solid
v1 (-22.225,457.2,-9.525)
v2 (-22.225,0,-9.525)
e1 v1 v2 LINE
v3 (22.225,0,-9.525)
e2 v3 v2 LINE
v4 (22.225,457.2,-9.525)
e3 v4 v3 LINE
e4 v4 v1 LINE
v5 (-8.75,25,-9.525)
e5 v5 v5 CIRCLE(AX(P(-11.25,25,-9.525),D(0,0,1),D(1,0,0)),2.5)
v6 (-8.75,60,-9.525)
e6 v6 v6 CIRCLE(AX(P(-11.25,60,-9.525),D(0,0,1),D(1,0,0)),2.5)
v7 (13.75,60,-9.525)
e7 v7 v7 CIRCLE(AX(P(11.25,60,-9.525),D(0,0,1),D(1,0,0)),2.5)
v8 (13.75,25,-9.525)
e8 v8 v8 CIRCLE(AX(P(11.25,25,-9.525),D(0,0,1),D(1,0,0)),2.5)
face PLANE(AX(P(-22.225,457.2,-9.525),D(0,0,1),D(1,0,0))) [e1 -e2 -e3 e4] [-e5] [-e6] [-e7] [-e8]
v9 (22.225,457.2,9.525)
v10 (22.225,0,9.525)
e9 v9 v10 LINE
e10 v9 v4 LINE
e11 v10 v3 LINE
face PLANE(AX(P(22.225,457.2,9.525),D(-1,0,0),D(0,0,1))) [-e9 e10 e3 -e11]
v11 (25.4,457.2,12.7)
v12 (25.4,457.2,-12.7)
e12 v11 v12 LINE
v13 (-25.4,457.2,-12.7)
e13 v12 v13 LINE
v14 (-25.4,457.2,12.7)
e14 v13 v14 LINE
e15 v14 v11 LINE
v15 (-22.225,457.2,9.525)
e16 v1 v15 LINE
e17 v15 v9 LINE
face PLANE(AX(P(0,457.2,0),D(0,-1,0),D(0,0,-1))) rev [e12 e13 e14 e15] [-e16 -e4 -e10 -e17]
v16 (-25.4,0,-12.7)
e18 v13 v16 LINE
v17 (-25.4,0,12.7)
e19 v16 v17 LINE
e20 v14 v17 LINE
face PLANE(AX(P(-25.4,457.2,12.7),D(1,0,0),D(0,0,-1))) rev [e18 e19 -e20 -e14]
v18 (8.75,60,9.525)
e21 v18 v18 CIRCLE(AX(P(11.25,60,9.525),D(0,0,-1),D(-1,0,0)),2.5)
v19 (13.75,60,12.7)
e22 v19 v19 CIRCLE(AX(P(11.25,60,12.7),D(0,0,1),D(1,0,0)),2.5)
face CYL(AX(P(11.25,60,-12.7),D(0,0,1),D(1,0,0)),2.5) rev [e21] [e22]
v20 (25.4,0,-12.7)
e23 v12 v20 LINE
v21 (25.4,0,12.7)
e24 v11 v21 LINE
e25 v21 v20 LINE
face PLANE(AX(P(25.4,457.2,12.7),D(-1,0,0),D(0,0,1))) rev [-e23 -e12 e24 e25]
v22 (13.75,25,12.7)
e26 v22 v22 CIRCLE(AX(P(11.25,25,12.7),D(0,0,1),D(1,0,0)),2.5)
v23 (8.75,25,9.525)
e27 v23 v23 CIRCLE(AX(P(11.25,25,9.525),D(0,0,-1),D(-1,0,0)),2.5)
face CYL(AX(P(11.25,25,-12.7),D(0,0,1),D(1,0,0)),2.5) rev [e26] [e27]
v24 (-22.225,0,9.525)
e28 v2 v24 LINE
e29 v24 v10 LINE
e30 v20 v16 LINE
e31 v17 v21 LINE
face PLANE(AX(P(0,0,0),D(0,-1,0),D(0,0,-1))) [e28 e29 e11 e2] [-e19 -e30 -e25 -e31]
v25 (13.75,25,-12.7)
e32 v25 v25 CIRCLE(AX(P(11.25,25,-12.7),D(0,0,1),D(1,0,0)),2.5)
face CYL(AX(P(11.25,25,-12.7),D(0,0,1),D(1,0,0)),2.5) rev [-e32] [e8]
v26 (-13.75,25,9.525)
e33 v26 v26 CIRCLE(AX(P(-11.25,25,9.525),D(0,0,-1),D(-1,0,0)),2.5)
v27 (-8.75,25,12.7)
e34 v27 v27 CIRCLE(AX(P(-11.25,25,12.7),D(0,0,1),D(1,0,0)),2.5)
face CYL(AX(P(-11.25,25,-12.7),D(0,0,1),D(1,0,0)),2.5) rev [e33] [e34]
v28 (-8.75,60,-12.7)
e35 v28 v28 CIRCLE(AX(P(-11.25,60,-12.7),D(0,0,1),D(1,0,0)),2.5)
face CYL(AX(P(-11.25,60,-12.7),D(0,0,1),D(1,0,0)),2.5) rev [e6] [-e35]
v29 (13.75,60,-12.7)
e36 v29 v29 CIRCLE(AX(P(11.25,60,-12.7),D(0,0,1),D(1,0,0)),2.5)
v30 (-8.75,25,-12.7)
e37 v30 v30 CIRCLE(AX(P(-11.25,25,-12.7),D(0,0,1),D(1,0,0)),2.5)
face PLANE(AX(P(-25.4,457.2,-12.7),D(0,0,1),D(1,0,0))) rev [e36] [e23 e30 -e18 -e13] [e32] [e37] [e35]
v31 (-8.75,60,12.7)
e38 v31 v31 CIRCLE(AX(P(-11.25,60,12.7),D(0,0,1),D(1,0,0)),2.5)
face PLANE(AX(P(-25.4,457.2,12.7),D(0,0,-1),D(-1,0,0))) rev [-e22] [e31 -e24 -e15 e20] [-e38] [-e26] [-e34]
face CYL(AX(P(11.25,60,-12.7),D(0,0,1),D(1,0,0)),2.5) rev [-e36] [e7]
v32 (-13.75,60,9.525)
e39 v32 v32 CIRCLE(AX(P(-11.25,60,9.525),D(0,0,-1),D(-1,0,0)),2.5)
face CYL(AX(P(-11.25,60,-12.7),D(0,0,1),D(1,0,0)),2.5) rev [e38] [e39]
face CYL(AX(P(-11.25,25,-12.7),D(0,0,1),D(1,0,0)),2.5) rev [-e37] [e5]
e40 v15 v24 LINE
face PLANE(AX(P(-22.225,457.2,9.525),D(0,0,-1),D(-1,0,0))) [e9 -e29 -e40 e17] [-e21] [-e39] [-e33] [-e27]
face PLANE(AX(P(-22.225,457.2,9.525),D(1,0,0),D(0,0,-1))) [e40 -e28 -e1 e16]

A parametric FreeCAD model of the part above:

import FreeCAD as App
import Part
import Sketcher
from FreeCAD import Vector
Q = App.Units.Quantity


def add_polygon(sketch, points):
    """Adds a closed chain of lines whose ends are joined by coincident constraints."""
    first, n = sketch.GeometryCount, len(points)
    for a, b in zip(points, points[1:] + points[:1]):
        sketch.addGeometry(Part.LineSegment(App.Vector(*a, 0), App.Vector(*b, 0)), False)
    for i in range(n):
        sketch.addConstraint(Sketcher.Constraint("Coincident", first + i, 2, first + (i + 1) % n, 1))

doc = App.newDocument("Part")
params = doc.addObject("Spreadsheet::Sheet", "Params")
for row, (alias, value) in enumerate([
    ("sketch1_width", "2 in"),
    ("sketch1_height", "1 in"),
    ("sketch1_width2", "1.75 in"),
    ("sketch1_height2", "0.75 in"),
    ("pad1_length", "18 in"),
], start=1):
    params.set(f"A{row}", alias)
    params.set(f"B{row}", "=" + value)
    params.setAlias(f"B{row}", alias)

body = doc.addObject("PartDesign::Body", "Body")

# Sketch on XZ plane
sketch1 = body.newObject("Sketcher::SketchObject", "Sketch")
sketch1.AttachmentSupport = (doc.getObject("XZ_Plane"), [""])
sketch1.MapMode = "FlatFace"
add_polygon(sketch1, [(-25, -13), (-25, 13), (25, 13), (25, -13)])  # lines 0-3
add_polygon(sketch1, [(22, 10), (-22, 10), (-22, -10), (22, -10)])  # lines 4-7
sketch1.addConstraint(Sketcher.Constraint("Vertical", 0))
sketch1.addConstraint(Sketcher.Constraint("Horizontal", 1))
sketch1.addConstraint(Sketcher.Constraint("Vertical", 2))
sketch1.addConstraint(Sketcher.Constraint("Horizontal", 3))
sketch1.addConstraint(Sketcher.Constraint("Horizontal", 4))
sketch1.addConstraint(Sketcher.Constraint("Vertical", 5))
sketch1.addConstraint(Sketcher.Constraint("Horizontal", 6))
sketch1.addConstraint(Sketcher.Constraint("Vertical", 7))
sketch1.addConstraint(Sketcher.Constraint("Symmetric", 0, 2, 2, 2, -1, 1))
sketch1.addConstraint(Sketcher.Constraint("Symmetric", 4, 2, 6, 2, -1, 1))
sketch1.addConstraint(Sketcher.Constraint("DistanceX", 1, 1, 1, 2, Q("2 in")))
sketch1.addConstraint(Sketcher.Constraint("DistanceY", 0, 1, 0, 2, Q("1 in")))
sketch1.addConstraint(Sketcher.Constraint("DistanceX", 4, 2, 4, 1, Q("1.75 in")))
sketch1.addConstraint(Sketcher.Constraint("DistanceY", 5, 2, 5, 1, Q("0.75 in")))
sketch1.setExpression("Constraints[18]", "Params.sketch1_width")
sketch1.setExpression("Constraints[19]", "Params.sketch1_height")
sketch1.setExpression("Constraints[20]", "Params.sketch1_width2")
sketch1.setExpression("Constraints[21]", "Params.sketch1_height2")
pad1 = body.newObject("PartDesign::Pad", "Pad")
pad1.Profile = sketch1
pad1.setExpression("Length", "Params.pad1_length")
pad1.Reversed = True

# Sketch on XY plane
sketch2 = body.newObject("Sketcher::SketchObject", "Sketch001")
sketch2.AttachmentSupport = (doc.getObject("XY_Plane"), [""])
sketch2.MapMode = "FlatFace"
sketch2.AttachmentOffset = App.Placement(Vector(0, 0, 0.5 * 25.4), App.Rotation())
sketch2.addGeometry(Part.Circle(Vector(-11.2, 60, 0), Vector(0, 0, 1), 2.5), False)
sketch2.addGeometry(Part.Circle(Vector(-11.2, 25, 0), Vector(0, 0, 1), 2.5), False)
sketch2.addGeometry(Part.Circle(Vector(11.2, 25, 0), Vector(0, 0, 1), 2.5), False)
sketch2.addGeometry(Part.Circle(Vector(11.2, 60, 0), Vector(0, 0, 1), 2.5), False)
sketch2.addConstraint(Sketcher.Constraint("Equal", 0, 1))
sketch2.addConstraint(Sketcher.Constraint("Equal", 1, 2))
sketch2.addConstraint(Sketcher.Constraint("Equal", 2, 3))
sketch2.addConstraint(Sketcher.Constraint("Symmetric", 1, 3, 2, 3, -2))
sketch2.addConstraint(Sketcher.Constraint("Symmetric", 0, 3, 3, 3, -2))
sketch2.addConstraint(Sketcher.Constraint("Vertical", 0, 3, 1, 3))
sketch2.addConstraint(Sketcher.Constraint("Diameter", 0, Q("5 mm")))
sketch2.addConstraint(Sketcher.Constraint("DistanceX", 0, 3, -1, 1, Q("11.25 mm")))
sketch2.addConstraint(Sketcher.Constraint("DistanceY", -1, 1, 0, 3, Q("60 mm")))
sketch2.addConstraint(Sketcher.Constraint("DistanceY", -1, 1, 1, 3, Q("25 mm")))
pocket1 = body.newObject("PartDesign::Pocket", "Pocket")
pocket1.Profile = sketch2
pocket1.Type = "ThroughAll"

doc.recompute()
